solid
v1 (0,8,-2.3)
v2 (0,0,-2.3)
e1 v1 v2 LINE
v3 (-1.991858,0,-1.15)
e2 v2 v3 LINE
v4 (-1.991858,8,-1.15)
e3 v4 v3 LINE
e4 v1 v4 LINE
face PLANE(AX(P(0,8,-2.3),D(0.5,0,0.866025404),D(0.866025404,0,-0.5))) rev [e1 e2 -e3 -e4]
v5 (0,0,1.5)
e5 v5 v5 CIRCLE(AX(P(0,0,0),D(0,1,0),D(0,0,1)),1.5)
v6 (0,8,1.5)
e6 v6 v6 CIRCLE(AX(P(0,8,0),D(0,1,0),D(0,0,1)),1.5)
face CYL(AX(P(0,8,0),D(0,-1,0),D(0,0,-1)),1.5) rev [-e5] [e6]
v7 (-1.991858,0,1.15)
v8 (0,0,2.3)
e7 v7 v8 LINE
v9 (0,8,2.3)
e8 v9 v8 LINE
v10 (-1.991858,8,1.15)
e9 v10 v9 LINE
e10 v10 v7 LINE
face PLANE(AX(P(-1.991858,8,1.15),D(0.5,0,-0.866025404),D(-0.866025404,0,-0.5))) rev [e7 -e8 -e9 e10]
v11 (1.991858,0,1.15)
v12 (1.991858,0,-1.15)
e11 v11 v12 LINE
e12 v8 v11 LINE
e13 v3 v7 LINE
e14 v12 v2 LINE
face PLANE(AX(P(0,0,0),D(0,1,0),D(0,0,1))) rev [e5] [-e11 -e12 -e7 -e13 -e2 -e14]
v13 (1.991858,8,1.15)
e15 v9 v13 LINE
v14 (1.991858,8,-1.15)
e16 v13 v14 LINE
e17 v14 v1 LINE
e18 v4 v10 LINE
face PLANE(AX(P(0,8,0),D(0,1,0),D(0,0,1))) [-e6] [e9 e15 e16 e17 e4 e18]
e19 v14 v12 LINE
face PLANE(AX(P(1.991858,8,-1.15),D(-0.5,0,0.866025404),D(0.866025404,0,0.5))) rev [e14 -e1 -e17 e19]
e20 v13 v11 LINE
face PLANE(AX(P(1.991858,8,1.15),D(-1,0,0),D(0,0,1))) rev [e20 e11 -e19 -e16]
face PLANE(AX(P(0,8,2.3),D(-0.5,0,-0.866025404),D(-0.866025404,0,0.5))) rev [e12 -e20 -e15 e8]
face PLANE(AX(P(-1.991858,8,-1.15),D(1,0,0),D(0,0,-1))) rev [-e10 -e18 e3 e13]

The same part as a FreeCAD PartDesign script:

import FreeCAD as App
import Part
import Sketcher

V = App.Vector
Q = App.Units.Quantity

doc = App.newDocument("Part")
params = doc.addObject("Spreadsheet::Sheet", "Params")
for row, (alias, value) in enumerate([
    ("sketch1_diameter", "3 mm"),
    ("sketch1_height", "2.3 mm"),
    ("sketch1_length", "2.3 mm"),
    ("pad1_length", "8 mm"),
], start=1):
    params.set(f"A{row}", alias)
    params.set(f"B{row}", "=" + value)
    params.setAlias(f"B{row}", alias)

body = doc.addObject("PartDesign::Body", "Body")

sketch1 = doc.addObject("Sketcher::SketchObject", "Sketch")
body.addObject(sketch1)
sketch1.AttachmentSupport = (doc.XZ_Plane, [""])
sketch1.MapMode = "FlatFace"
sketch1.addGeometry([
    Part.LineSegment(V(2, -1.1, 0), V(0, -2.3, 0)),
    Part.LineSegment(V(0, -2.3, 0), V(-2, -1.1, 0)),
    Part.LineSegment(V(-2, -1.1, 0), V(-2, 1.1, 0)),
    Part.LineSegment(V(-2, 1.1, 0), V(0, 2.3, 0)),
    Part.LineSegment(V(0, 2.3, 0), V(2, 1.1, 0)),
    Part.LineSegment(V(2, 1.1, 0), V(2, -1.1, 0)),
    Part.Circle(V(0, 0, 0), V(0, 0, 1), 1.5),
], False)
sketch1.addConstraint([
    Sketcher.Constraint("Coincident", 0, 2, 1, 1),
    Sketcher.Constraint("Coincident", 1, 2, 2, 1),
    Sketcher.Constraint("Coincident", 2, 2, 3, 1),
    Sketcher.Constraint("Coincident", 3, 2, 4, 1),
    Sketcher.Constraint("Coincident", 4, 2, 5, 1),
    Sketcher.Constraint("Coincident", 5, 2, 0, 1),
    Sketcher.Constraint("Vertical", 2),
    Sketcher.Constraint("Vertical", 5),
    Sketcher.Constraint("Coincident", 6, 3, -1, 1),
    Sketcher.Constraint("Symmetric", 0, 2, 3, 2, -1, 1),
    Sketcher.Constraint("Symmetric", 1, 2, 4, 2, -1, 1),
    Sketcher.Constraint("PointOnObject", 0, 2, -2),
    Sketcher.Constraint("Parallel", 0, 3),
    Sketcher.Constraint("Horizontal", 2, 2, 4, 2),
    Sketcher.Constraint("Diameter", 6, Q("3 mm")),
    Sketcher.Constraint("Angle", 0, Q("-150 deg")),
    Sketcher.Constraint("DistanceY", 2, 1, 2, 2, Q("2.3 mm")),
    Sketcher.Constraint("Distance", 0, Q("2.3 mm")),
])
sketch1.setExpression("Constraints[14]", "Params.sketch1_diameter")
sketch1.setExpression("Constraints[16]", "Params.sketch1_height")
sketch1.setExpression("Constraints[17]", "Params.sketch1_length")
pad1 = doc.addObject("PartDesign::Pad", "Pad")
body.addObject(pad1)
pad1.Profile = sketch1
pad1.setExpression("Length", "Params.pad1_length")
pad1.Reversed = True

doc.recompute()
